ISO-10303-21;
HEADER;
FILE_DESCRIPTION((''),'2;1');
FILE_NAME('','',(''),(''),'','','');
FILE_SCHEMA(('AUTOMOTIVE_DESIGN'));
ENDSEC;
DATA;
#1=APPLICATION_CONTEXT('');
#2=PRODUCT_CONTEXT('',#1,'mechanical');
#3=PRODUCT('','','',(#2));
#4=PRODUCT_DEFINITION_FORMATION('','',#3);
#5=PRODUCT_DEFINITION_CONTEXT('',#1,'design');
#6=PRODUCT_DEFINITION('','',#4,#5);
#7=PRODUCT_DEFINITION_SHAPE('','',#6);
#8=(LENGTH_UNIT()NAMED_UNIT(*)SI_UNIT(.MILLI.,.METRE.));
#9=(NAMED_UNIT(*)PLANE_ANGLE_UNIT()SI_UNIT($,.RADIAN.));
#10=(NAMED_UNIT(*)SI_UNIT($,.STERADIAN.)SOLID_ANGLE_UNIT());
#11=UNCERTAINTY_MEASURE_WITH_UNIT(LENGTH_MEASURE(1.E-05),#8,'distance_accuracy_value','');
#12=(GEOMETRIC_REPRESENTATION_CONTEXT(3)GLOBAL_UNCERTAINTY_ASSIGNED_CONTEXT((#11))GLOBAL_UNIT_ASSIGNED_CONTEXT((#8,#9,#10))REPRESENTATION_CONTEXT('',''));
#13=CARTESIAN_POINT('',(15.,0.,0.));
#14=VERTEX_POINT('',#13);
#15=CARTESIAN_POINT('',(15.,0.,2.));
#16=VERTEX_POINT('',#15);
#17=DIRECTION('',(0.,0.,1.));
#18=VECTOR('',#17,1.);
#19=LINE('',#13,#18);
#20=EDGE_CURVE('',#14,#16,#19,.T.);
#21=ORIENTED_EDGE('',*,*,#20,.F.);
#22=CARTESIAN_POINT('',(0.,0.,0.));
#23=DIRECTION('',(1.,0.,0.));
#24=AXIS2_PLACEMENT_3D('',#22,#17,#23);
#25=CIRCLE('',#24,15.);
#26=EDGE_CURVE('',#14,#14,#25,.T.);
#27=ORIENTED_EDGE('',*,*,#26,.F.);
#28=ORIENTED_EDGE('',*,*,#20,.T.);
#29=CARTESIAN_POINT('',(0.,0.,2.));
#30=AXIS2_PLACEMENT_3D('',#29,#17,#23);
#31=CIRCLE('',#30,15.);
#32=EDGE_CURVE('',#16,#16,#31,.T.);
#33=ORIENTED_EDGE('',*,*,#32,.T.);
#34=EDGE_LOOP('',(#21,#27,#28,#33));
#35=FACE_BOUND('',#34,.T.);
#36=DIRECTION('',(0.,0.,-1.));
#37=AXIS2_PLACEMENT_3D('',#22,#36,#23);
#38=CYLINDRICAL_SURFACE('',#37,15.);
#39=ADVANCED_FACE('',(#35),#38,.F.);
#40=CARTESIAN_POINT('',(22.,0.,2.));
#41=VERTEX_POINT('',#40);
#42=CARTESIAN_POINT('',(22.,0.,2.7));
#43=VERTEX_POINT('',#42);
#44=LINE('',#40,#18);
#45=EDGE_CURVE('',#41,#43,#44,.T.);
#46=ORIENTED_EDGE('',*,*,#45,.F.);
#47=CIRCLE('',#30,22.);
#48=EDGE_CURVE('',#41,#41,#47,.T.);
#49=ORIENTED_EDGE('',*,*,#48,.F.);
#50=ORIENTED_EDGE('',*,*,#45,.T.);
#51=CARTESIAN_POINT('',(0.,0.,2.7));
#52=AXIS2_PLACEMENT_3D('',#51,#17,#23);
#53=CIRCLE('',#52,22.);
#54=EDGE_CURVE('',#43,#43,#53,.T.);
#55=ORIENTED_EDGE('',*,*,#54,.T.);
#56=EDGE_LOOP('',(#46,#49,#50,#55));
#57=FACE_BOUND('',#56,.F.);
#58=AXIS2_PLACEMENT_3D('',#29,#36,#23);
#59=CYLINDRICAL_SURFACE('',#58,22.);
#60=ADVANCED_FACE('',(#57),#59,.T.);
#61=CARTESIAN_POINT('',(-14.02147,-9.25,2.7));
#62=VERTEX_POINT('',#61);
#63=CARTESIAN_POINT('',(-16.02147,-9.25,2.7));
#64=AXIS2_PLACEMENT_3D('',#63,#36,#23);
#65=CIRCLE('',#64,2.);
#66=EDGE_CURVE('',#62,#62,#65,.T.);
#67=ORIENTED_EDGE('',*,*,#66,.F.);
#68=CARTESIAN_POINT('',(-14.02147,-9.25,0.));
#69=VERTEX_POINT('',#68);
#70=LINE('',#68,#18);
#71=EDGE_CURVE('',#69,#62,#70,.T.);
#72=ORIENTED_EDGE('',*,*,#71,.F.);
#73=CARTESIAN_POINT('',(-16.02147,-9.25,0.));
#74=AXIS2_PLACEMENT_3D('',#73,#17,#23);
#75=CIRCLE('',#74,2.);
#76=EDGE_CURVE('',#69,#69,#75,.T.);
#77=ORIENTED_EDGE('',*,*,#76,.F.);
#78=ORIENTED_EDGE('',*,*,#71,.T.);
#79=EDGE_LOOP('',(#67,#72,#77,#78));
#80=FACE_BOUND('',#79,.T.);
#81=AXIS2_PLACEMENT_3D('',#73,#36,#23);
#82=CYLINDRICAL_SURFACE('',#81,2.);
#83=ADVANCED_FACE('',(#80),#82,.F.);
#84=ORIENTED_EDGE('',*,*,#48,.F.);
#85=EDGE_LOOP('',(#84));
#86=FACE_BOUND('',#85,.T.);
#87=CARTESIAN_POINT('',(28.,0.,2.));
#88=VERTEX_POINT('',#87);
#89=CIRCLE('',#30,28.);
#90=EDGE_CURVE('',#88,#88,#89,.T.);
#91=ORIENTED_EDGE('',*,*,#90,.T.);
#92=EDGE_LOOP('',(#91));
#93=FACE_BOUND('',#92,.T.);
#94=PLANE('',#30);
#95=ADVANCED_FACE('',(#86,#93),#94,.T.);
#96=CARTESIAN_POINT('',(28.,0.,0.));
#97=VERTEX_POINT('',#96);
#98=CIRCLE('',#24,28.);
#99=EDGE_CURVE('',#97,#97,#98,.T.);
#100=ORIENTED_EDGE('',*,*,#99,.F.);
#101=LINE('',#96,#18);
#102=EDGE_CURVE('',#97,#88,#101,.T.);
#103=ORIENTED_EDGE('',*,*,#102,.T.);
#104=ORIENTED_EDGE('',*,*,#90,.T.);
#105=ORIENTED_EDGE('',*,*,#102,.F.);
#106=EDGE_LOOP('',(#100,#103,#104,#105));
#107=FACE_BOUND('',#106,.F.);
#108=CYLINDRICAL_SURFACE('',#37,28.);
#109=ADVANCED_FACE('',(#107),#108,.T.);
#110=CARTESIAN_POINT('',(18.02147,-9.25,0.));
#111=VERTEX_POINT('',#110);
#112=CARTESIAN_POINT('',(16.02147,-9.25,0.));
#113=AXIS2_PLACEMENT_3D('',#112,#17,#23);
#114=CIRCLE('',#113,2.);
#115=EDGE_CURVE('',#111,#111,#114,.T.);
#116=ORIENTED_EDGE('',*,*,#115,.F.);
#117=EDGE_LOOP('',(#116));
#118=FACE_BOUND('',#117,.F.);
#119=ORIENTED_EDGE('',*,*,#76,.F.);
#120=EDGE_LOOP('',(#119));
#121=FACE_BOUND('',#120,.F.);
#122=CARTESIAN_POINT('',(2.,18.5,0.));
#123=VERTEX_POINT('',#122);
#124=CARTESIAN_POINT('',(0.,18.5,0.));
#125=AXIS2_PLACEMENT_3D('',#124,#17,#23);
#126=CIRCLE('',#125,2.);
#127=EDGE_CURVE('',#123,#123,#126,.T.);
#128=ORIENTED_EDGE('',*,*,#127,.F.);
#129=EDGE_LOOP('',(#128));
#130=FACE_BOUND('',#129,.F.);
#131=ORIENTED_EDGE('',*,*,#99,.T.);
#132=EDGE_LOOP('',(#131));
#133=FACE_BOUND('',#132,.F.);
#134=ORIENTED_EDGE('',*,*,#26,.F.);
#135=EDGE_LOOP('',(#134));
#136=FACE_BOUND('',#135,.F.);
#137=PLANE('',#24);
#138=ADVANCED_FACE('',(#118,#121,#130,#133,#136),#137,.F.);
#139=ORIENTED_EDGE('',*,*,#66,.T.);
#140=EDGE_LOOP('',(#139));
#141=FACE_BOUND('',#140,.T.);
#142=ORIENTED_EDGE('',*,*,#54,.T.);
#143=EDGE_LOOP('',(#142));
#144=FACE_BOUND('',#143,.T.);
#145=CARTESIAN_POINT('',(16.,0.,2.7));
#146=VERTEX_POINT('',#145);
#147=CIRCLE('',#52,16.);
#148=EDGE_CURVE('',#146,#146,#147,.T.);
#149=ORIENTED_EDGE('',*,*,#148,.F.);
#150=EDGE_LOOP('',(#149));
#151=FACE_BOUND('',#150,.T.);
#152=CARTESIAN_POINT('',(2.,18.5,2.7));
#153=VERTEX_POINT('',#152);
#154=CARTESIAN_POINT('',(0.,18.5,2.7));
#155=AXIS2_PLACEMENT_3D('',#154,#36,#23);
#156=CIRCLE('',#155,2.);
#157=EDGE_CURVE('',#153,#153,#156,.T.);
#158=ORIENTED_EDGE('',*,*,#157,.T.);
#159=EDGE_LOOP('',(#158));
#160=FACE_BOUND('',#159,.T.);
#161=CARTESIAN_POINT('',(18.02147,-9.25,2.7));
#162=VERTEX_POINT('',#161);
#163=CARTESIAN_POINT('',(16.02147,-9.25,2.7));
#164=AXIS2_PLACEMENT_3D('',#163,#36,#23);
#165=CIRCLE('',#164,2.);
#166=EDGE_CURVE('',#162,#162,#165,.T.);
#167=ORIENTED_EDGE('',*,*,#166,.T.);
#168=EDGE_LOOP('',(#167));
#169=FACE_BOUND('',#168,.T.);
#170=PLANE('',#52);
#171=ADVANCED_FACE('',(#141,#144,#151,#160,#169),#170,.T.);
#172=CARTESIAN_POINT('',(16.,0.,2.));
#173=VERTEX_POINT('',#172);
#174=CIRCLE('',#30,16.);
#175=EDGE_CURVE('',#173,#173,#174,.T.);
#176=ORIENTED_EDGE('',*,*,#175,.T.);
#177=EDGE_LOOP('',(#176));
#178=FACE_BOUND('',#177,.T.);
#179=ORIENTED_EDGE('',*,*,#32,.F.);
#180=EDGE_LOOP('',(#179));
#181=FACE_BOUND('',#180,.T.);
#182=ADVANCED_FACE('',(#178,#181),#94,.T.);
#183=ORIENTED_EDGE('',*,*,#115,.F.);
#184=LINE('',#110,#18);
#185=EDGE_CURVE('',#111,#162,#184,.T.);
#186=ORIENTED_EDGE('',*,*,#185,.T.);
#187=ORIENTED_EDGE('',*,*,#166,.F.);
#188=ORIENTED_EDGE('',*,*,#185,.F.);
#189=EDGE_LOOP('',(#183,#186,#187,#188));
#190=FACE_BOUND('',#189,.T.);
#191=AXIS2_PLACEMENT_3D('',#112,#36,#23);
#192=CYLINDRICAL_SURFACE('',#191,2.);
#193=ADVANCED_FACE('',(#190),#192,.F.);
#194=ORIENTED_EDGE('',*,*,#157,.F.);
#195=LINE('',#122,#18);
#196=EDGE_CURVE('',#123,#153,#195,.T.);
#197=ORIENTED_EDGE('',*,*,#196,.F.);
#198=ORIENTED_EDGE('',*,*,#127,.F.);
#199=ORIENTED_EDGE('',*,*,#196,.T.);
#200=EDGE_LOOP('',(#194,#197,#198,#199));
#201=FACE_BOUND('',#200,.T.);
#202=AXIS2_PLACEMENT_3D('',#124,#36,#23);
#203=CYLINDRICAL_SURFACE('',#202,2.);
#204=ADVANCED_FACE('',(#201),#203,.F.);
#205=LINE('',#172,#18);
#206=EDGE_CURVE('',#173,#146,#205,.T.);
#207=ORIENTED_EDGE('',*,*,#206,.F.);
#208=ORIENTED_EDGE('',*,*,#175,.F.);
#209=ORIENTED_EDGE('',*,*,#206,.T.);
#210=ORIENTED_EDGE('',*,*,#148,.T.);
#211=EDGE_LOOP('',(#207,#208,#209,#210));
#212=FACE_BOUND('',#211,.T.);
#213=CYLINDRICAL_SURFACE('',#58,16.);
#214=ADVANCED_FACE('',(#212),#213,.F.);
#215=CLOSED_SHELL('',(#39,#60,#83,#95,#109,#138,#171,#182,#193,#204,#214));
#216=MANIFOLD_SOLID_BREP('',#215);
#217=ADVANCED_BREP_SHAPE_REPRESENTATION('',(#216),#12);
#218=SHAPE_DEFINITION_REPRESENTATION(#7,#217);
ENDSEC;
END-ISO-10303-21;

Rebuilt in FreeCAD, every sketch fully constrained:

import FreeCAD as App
import Part
import Sketcher
from FreeCAD import Vector
Q = App.Units.Quantity

doc = App.newDocument("Part")
body = doc.addObject("PartDesign::Body", "Body")

sketch1 = doc.addObject("Sketcher::SketchObject", "Sketch")
body.addObject(sketch1)
sketch1.AttachmentSupport = (doc.XY_Plane, [""])
sketch1.MapMode = "FlatFace"
sketch1.addGeometry(Part.Circle(Vector(0, 0, 0), Vector(0, 0, 1), 28), False)
sketch1.addGeometry(Part.Circle(Vector(0, 0, 0), Vector(0, 0, 1), 15), False)
sketch1.addConstraint(Sketcher.Constraint("Coincident", 0, 3, -1, 1))
sketch1.addConstraint(Sketcher.Constraint("Coincident", 1, 3, -1, 1))
sketch1.addConstraint(Sketcher.Constraint("Diameter", 0, Q("56 mm")))
sketch1.addConstraint(Sketcher.Constraint("Diameter", 1, Q("30 mm")))
pad1 = doc.addObject("PartDesign::Pad", "Pad")
body.addObject(pad1)
pad1.Profile = sketch1
pad1.Length = 2

sketch2 = doc.addObject("Sketcher::SketchObject", "Sketch001")
body.addObject(sketch2)
sketch2.AttachmentSupport = (doc.XY_Plane, [""])
sketch2.MapMode = "FlatFace"
sketch2.AttachmentOffset = App.Placement(Vector(0, 0, 2), App.Rotation())
sketch2.addGeometry(Part.Circle(Vector(0, 0, 0), Vector(0, 0, 1), 22), False)
sketch2.addGeometry(Part.Circle(Vector(0, 0, 0), Vector(0, 0, 1), 16), False)
sketch2.addConstraint(Sketcher.Constraint("Coincident", 0, 3, -1, 1))
sketch2.addConstraint(Sketcher.Constraint("Coincident", 1, 3, -1, 1))
sketch2.addConstraint(Sketcher.Constraint("Diameter", 0, Q("44 mm")))
sketch2.addConstraint(Sketcher.Constraint("Diameter", 1, Q("32 mm")))
pad2 = doc.addObject("PartDesign::Pad", "Pad001")
body.addObject(pad2)
pad2.Profile = sketch2
pad2.Length = 0.7

sketch3 = doc.addObject("Sketcher::SketchObject", "Sketch002")
body.addObject(sketch3)
sketch3.AttachmentSupport = (doc.XY_Plane, [""])
sketch3.MapMode = "FlatFace"
sketch3.addGeometry(Part.Circle(Vector(0, 18.5, 0), Vector(0, 0, 1), 2), False)
sketch3.addGeometry(Part.Circle(Vector(16.02147, -9.25, 0), Vector(0, 0, 1), 2), False)
sketch3.addGeometry(Part.Circle(Vector(-16.02147, -9.25, 0), Vector(0, 0, 1), 2), False)
sketch3.addConstraint(Sketcher.Constraint("Equal", 0, 1))
sketch3.addConstraint(Sketcher.Constraint("Equal", 1, 2))
sketch3.addConstraint(Sketcher.Constraint("Symmetric", 1, 3, 2, 3, -2))
sketch3.addConstraint(Sketcher.Constraint("PointOnObject", 0, 3, -2))
sketch3.addConstraint(Sketcher.Constraint("Diameter", 0, Q("4 mm")))
sketch3.addConstraint(Sketcher.Constraint("DistanceY", -1, 1, 0, 3, Q("18.5 mm")))
sketch3.addConstraint(Sketcher.Constraint("DistanceY", 1, 3, -1, 1, Q("9.25 mm")))
sketch3.addConstraint(Sketcher.Constraint("DistanceX", -1, 1, 1, 3, Q("16.02147 mm")))
pocket1 = doc.addObject("PartDesign::Pocket", "Pocket")
body.addObject(pocket1)
pocket1.Profile = sketch3
pocket1.Type = "ThroughAll"
pocket1.Reversed = True

doc.recompute()
